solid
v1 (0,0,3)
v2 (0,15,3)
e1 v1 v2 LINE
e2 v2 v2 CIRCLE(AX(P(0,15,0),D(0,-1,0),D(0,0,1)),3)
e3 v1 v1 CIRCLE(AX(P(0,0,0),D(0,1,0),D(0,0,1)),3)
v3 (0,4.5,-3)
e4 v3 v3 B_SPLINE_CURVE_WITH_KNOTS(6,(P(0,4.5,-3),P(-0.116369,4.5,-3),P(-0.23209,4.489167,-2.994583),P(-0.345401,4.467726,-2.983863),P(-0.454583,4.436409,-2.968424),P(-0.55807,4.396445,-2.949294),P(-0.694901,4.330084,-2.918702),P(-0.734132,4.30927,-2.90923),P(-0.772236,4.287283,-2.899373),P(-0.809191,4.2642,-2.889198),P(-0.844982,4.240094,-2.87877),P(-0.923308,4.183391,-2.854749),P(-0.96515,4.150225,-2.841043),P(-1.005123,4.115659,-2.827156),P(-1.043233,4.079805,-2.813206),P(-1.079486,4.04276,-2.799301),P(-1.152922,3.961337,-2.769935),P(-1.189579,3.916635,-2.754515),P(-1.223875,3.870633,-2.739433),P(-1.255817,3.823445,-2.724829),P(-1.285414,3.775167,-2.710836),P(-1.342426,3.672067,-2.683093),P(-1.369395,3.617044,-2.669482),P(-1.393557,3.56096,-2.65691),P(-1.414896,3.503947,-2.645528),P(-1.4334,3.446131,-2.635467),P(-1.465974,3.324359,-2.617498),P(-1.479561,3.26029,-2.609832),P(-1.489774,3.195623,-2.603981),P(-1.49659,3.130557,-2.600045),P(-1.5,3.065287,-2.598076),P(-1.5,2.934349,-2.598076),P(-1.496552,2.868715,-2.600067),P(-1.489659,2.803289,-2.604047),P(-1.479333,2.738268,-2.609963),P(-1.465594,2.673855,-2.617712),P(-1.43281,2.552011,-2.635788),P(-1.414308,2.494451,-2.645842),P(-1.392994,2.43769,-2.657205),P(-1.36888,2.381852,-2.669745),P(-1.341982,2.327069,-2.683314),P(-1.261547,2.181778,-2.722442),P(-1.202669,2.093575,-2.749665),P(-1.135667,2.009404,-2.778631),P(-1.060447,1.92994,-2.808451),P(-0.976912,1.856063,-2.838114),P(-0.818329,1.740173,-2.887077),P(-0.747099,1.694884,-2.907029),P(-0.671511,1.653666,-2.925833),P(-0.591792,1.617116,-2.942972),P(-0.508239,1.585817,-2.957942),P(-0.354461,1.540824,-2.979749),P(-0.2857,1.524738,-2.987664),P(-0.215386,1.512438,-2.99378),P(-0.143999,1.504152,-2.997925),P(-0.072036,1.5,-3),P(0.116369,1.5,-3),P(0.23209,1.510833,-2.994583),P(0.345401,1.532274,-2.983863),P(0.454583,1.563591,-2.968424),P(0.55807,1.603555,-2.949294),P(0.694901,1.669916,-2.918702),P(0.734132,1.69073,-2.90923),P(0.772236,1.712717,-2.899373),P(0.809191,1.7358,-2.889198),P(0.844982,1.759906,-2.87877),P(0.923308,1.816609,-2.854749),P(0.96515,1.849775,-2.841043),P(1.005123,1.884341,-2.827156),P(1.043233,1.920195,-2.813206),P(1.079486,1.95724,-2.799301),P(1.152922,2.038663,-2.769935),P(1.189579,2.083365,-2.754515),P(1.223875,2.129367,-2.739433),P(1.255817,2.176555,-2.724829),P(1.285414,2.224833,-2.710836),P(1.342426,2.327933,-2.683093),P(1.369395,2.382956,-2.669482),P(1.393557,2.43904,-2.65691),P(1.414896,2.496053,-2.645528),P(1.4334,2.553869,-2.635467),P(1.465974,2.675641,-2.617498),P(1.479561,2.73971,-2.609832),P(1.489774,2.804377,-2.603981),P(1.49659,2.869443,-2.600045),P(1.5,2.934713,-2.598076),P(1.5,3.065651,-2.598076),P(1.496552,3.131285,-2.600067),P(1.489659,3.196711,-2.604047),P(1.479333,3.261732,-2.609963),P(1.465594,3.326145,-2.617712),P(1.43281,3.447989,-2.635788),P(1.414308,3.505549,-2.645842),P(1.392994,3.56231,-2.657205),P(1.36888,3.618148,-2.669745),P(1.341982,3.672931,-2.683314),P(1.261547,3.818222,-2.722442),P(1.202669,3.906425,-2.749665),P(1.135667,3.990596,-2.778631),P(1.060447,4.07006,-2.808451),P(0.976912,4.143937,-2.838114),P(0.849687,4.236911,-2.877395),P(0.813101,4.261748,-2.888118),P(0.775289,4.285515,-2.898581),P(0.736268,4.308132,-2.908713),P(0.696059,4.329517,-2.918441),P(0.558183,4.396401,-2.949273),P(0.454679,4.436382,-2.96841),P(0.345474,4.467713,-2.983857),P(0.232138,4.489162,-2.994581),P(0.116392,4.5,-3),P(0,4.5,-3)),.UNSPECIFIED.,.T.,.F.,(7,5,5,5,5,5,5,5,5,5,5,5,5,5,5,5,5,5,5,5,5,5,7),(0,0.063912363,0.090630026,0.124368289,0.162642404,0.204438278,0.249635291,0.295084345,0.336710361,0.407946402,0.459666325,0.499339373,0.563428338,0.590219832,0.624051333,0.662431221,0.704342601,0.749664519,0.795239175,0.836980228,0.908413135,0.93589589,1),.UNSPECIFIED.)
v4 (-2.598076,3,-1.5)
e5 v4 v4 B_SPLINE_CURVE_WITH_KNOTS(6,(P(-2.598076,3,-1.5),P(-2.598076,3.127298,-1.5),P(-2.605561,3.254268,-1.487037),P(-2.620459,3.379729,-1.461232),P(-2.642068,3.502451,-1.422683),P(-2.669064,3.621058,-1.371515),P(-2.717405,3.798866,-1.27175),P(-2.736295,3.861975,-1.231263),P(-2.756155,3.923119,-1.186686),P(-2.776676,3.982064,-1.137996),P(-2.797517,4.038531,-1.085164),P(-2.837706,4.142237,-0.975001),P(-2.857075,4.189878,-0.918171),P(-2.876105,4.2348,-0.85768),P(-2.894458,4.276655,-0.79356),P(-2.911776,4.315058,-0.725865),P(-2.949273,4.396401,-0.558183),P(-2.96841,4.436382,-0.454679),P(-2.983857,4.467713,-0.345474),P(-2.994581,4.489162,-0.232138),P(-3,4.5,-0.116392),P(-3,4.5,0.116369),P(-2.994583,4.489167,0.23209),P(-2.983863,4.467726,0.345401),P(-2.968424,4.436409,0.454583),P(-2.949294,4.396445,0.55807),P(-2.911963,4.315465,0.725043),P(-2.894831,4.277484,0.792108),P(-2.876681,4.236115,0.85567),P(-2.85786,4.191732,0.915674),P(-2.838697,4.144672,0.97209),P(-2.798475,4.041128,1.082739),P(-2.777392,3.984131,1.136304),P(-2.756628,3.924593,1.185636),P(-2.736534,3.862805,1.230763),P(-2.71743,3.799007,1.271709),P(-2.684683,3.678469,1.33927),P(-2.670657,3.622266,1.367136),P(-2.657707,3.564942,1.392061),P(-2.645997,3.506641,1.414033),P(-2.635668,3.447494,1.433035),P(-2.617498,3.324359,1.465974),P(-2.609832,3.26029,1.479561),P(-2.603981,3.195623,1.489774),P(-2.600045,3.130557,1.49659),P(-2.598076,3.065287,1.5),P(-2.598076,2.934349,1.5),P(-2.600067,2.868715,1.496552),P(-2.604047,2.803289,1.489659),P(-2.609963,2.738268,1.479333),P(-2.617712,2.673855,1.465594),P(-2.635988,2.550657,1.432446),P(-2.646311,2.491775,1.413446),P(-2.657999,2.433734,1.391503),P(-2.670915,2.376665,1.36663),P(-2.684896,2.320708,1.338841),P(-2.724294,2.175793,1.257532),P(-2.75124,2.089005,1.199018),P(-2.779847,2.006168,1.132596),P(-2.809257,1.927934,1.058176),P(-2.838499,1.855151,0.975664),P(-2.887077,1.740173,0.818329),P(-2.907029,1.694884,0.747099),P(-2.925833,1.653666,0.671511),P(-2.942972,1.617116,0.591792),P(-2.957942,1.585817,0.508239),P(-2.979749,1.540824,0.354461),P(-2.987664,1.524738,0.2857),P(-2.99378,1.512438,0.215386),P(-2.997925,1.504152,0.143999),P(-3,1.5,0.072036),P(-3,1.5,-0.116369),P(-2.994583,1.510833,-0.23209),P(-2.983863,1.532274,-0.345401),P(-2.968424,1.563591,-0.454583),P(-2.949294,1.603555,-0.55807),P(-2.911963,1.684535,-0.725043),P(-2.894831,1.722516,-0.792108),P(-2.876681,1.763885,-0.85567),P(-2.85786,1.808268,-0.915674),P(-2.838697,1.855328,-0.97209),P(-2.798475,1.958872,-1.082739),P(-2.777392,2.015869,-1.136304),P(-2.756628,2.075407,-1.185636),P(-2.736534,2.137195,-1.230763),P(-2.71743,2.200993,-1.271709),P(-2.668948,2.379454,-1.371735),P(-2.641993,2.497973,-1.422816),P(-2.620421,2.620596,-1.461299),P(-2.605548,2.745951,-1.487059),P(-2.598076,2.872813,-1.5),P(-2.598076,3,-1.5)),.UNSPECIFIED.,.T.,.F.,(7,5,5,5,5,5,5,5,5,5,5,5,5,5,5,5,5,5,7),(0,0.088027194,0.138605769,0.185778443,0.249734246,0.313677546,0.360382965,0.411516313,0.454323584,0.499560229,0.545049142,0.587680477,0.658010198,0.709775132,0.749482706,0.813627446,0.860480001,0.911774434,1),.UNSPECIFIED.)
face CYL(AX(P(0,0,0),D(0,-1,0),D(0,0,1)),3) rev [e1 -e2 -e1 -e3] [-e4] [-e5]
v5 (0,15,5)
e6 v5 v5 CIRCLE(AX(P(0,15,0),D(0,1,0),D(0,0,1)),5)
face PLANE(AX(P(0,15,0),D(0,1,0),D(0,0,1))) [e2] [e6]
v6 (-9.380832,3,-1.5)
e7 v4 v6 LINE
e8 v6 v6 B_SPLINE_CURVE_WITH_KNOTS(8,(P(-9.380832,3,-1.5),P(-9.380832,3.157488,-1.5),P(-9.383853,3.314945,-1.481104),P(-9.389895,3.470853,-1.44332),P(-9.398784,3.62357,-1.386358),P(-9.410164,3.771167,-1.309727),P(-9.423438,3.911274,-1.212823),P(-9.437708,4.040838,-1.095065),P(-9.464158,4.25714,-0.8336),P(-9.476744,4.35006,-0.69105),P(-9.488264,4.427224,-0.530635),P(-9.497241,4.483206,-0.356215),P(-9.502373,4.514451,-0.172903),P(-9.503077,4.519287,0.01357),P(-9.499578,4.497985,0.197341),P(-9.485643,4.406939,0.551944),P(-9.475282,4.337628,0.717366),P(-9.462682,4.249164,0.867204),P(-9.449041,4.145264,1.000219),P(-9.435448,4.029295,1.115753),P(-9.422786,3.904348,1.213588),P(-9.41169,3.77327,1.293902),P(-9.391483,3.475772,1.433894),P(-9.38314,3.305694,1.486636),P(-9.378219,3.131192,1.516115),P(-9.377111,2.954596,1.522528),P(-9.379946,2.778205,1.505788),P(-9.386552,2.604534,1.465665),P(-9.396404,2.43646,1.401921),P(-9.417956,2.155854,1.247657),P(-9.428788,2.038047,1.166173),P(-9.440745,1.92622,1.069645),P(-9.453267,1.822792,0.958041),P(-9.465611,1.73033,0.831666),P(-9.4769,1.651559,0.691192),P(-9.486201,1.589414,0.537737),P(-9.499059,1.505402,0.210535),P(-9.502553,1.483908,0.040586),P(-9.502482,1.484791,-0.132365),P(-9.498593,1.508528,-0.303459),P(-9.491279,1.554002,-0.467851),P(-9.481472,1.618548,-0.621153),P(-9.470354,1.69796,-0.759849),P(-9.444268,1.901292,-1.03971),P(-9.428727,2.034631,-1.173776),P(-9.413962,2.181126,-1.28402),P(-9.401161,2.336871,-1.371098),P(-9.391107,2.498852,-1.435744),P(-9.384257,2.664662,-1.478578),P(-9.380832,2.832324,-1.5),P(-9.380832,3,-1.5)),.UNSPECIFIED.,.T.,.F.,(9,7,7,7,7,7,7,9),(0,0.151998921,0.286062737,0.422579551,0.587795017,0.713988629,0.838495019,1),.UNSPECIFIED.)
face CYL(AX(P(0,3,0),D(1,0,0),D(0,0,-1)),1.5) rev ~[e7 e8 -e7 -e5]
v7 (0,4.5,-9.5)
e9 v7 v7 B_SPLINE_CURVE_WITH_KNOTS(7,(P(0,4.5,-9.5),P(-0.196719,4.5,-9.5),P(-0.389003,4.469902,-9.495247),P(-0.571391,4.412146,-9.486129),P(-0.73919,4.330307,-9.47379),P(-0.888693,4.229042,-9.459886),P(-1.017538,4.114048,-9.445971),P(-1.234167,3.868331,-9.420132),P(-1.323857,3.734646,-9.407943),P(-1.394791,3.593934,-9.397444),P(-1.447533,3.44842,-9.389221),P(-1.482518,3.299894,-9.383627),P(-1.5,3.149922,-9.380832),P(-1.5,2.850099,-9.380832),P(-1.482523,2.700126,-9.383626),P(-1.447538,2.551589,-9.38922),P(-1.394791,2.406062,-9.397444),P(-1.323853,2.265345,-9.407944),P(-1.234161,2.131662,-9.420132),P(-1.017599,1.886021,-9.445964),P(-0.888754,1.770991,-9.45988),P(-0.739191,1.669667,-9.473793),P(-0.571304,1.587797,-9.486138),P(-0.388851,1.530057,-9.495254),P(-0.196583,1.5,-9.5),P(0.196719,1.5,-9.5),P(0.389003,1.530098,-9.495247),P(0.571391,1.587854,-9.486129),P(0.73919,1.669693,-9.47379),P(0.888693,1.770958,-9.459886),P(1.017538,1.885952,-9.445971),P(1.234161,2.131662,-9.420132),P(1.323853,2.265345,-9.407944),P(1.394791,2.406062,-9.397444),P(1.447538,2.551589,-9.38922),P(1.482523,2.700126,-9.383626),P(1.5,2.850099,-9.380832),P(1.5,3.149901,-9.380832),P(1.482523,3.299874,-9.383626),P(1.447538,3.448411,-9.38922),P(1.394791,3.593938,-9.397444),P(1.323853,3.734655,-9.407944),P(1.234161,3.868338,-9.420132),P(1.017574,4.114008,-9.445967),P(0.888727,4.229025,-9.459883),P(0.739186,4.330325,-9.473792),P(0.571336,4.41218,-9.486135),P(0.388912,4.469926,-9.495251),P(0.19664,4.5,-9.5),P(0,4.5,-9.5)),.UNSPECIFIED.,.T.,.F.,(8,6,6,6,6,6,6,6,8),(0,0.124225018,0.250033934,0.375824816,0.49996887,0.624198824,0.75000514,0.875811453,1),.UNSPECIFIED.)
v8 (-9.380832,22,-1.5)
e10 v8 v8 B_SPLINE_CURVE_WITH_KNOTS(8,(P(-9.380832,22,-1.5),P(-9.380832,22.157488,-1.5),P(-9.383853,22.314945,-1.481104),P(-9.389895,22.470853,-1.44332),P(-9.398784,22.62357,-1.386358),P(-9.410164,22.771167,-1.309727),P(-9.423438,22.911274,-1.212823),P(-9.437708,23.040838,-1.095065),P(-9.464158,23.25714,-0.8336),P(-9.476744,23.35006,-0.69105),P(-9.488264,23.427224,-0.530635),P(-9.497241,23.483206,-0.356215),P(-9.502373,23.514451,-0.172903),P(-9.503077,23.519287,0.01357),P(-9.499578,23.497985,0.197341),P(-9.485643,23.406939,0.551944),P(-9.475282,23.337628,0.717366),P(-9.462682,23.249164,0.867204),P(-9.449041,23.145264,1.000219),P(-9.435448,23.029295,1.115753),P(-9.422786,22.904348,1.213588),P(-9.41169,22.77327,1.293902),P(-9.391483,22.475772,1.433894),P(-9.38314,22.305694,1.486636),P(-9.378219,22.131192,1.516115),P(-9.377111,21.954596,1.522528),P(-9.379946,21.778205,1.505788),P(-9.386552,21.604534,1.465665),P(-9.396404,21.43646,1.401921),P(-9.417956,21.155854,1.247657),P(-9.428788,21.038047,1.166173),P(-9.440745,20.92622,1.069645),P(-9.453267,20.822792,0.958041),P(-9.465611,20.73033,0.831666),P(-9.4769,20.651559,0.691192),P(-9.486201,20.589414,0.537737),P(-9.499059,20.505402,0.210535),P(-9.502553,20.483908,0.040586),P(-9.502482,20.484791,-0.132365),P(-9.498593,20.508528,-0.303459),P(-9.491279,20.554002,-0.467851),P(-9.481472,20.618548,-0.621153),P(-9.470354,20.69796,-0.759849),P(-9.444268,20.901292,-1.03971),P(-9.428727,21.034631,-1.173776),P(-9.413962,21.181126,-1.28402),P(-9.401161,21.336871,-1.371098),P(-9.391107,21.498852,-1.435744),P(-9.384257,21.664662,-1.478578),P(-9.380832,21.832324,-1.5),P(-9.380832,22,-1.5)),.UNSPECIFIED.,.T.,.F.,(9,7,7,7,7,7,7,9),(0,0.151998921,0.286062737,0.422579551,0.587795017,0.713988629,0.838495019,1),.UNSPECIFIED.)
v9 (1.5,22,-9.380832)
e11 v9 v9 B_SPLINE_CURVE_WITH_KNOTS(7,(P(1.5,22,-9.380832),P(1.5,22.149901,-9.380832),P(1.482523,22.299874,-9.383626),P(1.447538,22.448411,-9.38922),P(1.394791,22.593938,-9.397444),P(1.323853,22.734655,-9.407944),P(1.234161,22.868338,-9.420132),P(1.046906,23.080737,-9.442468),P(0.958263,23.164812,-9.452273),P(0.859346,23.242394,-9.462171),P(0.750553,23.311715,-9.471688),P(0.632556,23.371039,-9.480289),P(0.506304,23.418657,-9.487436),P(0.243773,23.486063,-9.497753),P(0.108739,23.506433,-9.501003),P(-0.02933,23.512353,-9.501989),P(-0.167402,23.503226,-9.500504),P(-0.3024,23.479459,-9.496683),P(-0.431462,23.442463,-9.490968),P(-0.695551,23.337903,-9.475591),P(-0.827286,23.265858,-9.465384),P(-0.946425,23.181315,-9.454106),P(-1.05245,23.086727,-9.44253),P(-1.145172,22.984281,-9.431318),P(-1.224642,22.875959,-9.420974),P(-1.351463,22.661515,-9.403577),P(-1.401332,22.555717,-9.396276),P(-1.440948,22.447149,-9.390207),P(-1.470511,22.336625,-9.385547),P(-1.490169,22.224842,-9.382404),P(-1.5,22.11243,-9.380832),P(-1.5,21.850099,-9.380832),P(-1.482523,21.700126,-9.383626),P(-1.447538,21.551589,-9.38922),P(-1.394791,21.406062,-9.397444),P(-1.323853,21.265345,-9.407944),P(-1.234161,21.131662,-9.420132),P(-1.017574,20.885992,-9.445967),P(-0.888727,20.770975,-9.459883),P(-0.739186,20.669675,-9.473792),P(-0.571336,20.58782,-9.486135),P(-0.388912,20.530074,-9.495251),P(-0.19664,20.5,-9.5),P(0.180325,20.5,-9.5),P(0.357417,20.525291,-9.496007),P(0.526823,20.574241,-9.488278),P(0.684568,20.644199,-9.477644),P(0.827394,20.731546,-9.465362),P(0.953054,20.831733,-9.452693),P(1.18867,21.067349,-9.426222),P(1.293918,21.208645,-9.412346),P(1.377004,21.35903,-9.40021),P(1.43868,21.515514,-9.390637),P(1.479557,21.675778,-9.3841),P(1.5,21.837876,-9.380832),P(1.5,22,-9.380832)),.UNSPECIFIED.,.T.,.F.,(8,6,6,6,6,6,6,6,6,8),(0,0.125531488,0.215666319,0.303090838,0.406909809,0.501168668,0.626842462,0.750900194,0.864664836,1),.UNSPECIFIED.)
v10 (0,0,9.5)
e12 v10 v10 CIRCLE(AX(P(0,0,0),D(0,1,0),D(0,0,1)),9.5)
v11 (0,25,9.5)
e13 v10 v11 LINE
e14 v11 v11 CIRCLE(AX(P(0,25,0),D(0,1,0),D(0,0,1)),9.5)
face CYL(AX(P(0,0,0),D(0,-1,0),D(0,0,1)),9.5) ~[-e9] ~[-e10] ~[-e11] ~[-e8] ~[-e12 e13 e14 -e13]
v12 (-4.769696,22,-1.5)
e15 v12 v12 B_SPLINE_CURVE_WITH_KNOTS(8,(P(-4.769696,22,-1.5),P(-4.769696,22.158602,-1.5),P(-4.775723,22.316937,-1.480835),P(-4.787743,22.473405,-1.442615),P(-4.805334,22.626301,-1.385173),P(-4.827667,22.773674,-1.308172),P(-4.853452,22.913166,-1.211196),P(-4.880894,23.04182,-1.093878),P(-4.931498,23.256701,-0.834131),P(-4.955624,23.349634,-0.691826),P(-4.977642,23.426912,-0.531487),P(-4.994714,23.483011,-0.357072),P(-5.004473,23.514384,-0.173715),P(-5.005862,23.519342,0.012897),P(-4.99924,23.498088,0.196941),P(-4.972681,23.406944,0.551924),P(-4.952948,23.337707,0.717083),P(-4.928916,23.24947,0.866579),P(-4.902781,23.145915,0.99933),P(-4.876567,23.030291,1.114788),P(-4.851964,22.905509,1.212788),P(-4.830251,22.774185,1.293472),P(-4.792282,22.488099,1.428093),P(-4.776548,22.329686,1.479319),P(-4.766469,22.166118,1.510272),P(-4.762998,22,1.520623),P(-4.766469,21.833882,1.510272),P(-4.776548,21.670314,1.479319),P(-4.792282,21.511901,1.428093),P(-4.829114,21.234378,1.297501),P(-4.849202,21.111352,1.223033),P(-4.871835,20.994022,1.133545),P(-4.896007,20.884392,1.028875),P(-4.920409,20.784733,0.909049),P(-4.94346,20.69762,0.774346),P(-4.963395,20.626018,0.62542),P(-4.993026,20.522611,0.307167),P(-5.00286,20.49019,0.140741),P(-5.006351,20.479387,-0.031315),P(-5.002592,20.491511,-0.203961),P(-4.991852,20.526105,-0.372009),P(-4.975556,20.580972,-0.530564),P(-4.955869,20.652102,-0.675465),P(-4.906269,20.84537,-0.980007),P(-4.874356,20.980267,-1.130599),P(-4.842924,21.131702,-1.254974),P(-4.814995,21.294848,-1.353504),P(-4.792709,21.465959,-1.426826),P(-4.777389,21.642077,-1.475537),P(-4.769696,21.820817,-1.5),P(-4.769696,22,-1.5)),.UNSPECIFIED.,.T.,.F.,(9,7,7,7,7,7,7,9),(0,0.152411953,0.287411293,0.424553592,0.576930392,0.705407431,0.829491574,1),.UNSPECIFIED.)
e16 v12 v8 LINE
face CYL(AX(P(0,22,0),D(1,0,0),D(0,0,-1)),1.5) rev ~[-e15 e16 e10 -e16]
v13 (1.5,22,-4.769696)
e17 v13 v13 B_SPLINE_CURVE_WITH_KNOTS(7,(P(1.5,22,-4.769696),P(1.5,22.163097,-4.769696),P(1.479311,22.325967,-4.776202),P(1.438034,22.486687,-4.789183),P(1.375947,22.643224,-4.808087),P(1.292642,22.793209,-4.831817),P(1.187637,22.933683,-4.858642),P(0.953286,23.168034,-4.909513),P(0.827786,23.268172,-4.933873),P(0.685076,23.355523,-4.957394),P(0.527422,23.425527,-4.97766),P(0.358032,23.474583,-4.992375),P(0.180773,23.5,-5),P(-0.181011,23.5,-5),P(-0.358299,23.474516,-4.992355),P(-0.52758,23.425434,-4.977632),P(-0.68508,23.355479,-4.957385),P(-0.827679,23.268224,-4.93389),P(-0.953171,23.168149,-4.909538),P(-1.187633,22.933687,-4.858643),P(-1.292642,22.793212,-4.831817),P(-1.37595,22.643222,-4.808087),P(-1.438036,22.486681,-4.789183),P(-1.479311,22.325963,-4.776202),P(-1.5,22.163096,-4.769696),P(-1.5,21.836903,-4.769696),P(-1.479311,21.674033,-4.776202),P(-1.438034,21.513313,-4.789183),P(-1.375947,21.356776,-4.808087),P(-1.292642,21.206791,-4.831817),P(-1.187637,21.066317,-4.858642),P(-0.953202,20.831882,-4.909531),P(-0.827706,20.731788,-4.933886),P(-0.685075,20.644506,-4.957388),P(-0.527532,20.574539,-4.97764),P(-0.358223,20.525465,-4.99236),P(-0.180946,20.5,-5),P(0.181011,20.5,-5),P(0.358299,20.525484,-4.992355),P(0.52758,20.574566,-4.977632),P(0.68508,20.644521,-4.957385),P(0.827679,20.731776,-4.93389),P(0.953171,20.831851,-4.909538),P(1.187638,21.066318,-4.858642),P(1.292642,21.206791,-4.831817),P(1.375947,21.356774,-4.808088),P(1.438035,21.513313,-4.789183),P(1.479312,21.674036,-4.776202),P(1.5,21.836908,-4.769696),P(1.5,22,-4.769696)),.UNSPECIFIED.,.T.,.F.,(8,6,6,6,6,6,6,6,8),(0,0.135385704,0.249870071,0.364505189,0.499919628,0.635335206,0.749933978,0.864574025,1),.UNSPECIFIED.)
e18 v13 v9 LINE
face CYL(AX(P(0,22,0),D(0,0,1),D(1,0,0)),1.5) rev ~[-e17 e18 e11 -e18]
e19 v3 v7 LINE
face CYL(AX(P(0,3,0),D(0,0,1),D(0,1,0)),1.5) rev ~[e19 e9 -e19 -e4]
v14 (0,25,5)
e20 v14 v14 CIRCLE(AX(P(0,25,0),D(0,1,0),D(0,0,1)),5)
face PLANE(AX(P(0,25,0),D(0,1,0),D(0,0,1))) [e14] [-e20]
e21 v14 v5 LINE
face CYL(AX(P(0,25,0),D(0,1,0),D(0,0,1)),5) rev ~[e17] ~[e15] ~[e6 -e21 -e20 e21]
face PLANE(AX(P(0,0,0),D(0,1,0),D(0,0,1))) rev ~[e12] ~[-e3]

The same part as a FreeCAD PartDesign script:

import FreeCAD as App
import Part
import Sketcher

V = App.Vector
Q = App.Units.Quantity

doc = App.newDocument("Part")
body = doc.addObject("PartDesign::Body", "Body")

sketch1 = doc.addObject("Sketcher::SketchObject", "Sketch")
body.addObject(sketch1)
sketch1.AttachmentSupport = (doc.XZ_Plane, [""])
sketch1.MapMode = "FlatFace"
sketch1.addGeometry(Part.Circle(V(0, 0, 0), V(0, 0, 1), 9.5), False)
sketch1.addGeometry(Part.Circle(V(0, 0, 0), V(0, 0, 1), 3), False)
sketch1.addConstraint(Sketcher.Constraint("Coincident", 0, 3, -1, 1))
sketch1.addConstraint(Sketcher.Constraint("Coincident", 1, 3, -1, 1))
sketch1.addConstraint(Sketcher.Constraint("Diameter", 0, Q("19 mm")))
sketch1.addConstraint(Sketcher.Constraint("Diameter", 1, Q("6 mm")))
pad1 = doc.addObject("PartDesign::Pad", "Pad")
body.addObject(pad1)
pad1.Profile = sketch1
pad1.Length = 25
pad1.Reversed = True

sketch2 = doc.addObject("Sketcher::SketchObject", "Sketch001")
body.addObject(sketch2)
sketch2.AttachmentSupport = (doc.XZ_Plane, [""])
sketch2.MapMode = "FlatFace"
sketch2.AttachmentOffset = App.Placement(V(0, 0, -25), App.Rotation())
sketch2.addGeometry(Part.Circle(V(0, 0, 0), V(0, 0, 1), 5), False)
sketch2.addConstraint(Sketcher.Constraint("Coincident", 0, 3, -1, 1))
sketch2.addConstraint(Sketcher.Constraint("Diameter", 0, Q("10 mm")))
pocket1 = doc.addObject("PartDesign::Pocket", "Pocket")
body.addObject(pocket1)
pocket1.Profile = sketch2
pocket1.Length = 10
pocket1.Reversed = True

sketch3 = doc.addObject("Sketcher::SketchObject", "Sketch002")
body.addObject(sketch3)
sketch3.AttachmentSupport = (doc.YZ_Plane, [""])
sketch3.MapMode = "FlatFace"
sketch3.addGeometry(Part.Circle(V(3, 0, 0), V(0, 0, 1), 1.5), False)
sketch3.addGeometry(Part.Circle(V(22, 0, 0), V(0, 0, 1), 1.5), False)
sketch3.addConstraint(Sketcher.Constraint("Equal", 0, 1))
sketch3.addConstraint(Sketcher.Constraint("PointOnObject", 0, 3, -1))
sketch3.addConstraint(Sketcher.Constraint("PointOnObject", 1, 3, -1))
sketch3.addConstraint(Sketcher.Constraint("Diameter", 0, Q("3 mm")))
sketch3.addConstraint(Sketcher.Constraint("DistanceX", -1, 1, 0, 3, Q("3 mm")))
sketch3.addConstraint(Sketcher.Constraint("DistanceX", -1, 1, 1, 3, Q("22 mm")))
pocket2 = doc.addObject("PartDesign::Pocket", "Pocket001")
body.addObject(pocket2)
pocket2.Profile = sketch3
pocket2.Length = 10

sketch4 = doc.addObject("Sketcher::SketchObject", "Sketch003")
body.addObject(sketch4)
sketch4.AttachmentSupport = (doc.XY_Plane, [""])
sketch4.MapMode = "FlatFace"
sketch4.addGeometry(Part.Circle(V(0, 3, 0), V(0, 0, 1), 1.5), False)
sketch4.addGeometry(Part.Circle(V(0, 22, 0), V(0, 0, 1), 1.5), False)
sketch4.addConstraint(Sketcher.Constraint("Equal", 0, 1))
sketch4.addConstraint(Sketcher.Constraint("PointOnObject", 0, 3, -2))
sketch4.addConstraint(Sketcher.Constraint("PointOnObject", 1, 3, -2))
sketch4.addConstraint(Sketcher.Constraint("Diameter", 0, Q("3 mm")))
sketch4.addConstraint(Sketcher.Constraint("DistanceY", -1, 1, 0, 3, Q("3 mm")))
sketch4.addConstraint(Sketcher.Constraint("DistanceY", -1, 1, 1, 3, Q("22 mm")))
pocket3 = doc.addObject("PartDesign::Pocket", "Pocket002")
body.addObject(pocket3)
pocket3.Profile = sketch4
pocket3.Length = 10

doc.recompute()
